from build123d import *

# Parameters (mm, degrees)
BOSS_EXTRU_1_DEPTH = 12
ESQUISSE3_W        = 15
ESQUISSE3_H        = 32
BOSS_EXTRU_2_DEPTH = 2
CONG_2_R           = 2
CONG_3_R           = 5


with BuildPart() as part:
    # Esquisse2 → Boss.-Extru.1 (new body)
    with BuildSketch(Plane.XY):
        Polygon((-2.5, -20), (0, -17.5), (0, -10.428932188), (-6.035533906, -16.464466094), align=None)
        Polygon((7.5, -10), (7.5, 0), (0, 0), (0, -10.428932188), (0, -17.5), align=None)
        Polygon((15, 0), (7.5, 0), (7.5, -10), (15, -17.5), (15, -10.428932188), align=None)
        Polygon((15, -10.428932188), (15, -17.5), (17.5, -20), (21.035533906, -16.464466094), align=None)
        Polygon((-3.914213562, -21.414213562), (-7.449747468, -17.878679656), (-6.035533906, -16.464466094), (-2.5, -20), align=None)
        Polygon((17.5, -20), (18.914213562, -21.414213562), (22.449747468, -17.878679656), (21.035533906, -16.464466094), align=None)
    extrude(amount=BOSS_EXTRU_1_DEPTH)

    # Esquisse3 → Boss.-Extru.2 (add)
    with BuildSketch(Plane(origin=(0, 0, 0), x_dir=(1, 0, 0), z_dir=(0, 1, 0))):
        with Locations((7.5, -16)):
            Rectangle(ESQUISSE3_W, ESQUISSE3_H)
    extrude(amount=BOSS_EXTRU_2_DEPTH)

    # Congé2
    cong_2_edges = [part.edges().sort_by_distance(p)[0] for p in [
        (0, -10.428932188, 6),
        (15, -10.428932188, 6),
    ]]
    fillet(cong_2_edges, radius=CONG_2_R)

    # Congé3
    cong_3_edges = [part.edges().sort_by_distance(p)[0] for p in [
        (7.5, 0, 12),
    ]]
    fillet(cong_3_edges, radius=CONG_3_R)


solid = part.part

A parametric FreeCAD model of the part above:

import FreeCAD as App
import Part
import Sketcher
Q = App.Units.Quantity


def edges_at(feature, points):
    """Names of the edges that pass closest to the given points."""
    edges = feature.Shape.Edges
    near = lambda p: min(range(len(edges)), key=lambda i: edges[i].distToShape(Part.Vertex(*p))[0])
    return sorted({f"Edge{near(p) + 1}" for p in points})


def add_polygon(sketch, points):
    """Adds a closed chain of lines whose ends are joined by coincident constraints."""
    first, n = sketch.GeometryCount, len(points)
    for a, b in zip(points, points[1:] + points[:1]):
        sketch.addGeometry(Part.LineSegment(App.Vector(*a, 0), App.Vector(*b, 0)), False)
    for i in range(n):
        sketch.addConstraint(Sketcher.Constraint("Coincident", first + i, 2, first + (i + 1) % n, 1))

doc = App.newDocument("Part")
body = doc.addObject("PartDesign::Body", "Body")

sketch1 = doc.addObject("Sketcher::SketchObject", "Sketch")
body.addObject(sketch1)
sketch1.AttachmentSupport = (doc.XY_Plane, [""])
sketch1.MapMode = "FlatFace"
add_polygon(sketch1, [(7.5, -10), (18.914214, -21.414214), (22.449747, -17.87868), (15, -10.428932), (15, 0), (0, 0), (0, -10.428932), (-7.449747, -17.87868), (-3.914214, -21.414214)])
sketch1.addConstraint(Sketcher.Constraint("Vertical", 3))
sketch1.addConstraint(Sketcher.Constraint("Horizontal", 4))
sketch1.addConstraint(Sketcher.Constraint("Vertical", 5))
sketch1.addConstraint(Sketcher.Constraint("Coincident", 4, 2, -1, 1))
sketch1.addConstraint(Sketcher.Constraint("Perpendicular", 0, 1))
sketch1.addConstraint(Sketcher.Constraint("Perpendicular", 1, 2))
sketch1.addConstraint(Sketcher.Constraint("Perpendicular", 2, 6))
sketch1.addConstraint(Sketcher.Constraint("Perpendicular", 6, 7))
sketch1.addConstraint(Sketcher.Constraint("Perpendicular", 7, 8))
sketch1.addConstraint(Sketcher.Constraint("Horizontal", 2, 2, 5, 2))
sketch1.addConstraint(Sketcher.Constraint("Horizontal", 1, 2, 6, 2))
sketch1.addConstraint(Sketcher.Constraint("Horizontal", 0, 2, 7, 2))
sketch1.addConstraint(Sketcher.Constraint("Equal", 2, 6))
sketch1.addConstraint(Sketcher.Constraint("DistanceX", 4, 2, 4, 1, Q("15 mm")))
sketch1.addConstraint(Sketcher.Constraint("Distance", 1, Q("5 mm")))
sketch1.addConstraint(Sketcher.Constraint("DistanceY", 8, 2, -1, 1, Q("10 mm")))
sketch1.addConstraint(Sketcher.Constraint("DistanceY", 1, 2, -1, 1, Q("17.87868 mm")))
pad1 = doc.addObject("PartDesign::Pad", "Pad")
body.addObject(pad1)
pad1.Profile = sketch1
pad1.Length = 12

sketch2 = doc.addObject("Sketcher::SketchObject", "Sketch001")
body.addObject(sketch2)
sketch2.AttachmentSupport = (doc.XZ_Plane, [""])
sketch2.MapMode = "FlatFace"
add_polygon(sketch2, [(0, 0), (0, 32), (15, 32), (15, 0)])
sketch2.addConstraint(Sketcher.Constraint("Vertical", 0))
sketch2.addConstraint(Sketcher.Constraint("Horizontal", 1))
sketch2.addConstraint(Sketcher.Constraint("Vertical", 2))
sketch2.addConstraint(Sketcher.Constraint("Horizontal", 3))
sketch2.addConstraint(Sketcher.Constraint("Coincident", 3, 2, -1, 1))
sketch2.addConstraint(Sketcher.Constraint("DistanceX", 1, 1, 1, 2, Q("15 mm")))
sketch2.addConstraint(Sketcher.Constraint("DistanceY", 0, 1, 0, 2, Q("32 mm")))
pad2 = doc.addObject("PartDesign::Pad", "Pad001")
body.addObject(pad2)
pad2.Profile = sketch2
pad2.Length = 2
pad2.Reversed = True
doc.recompute()

fillet = doc.addObject("PartDesign::Fillet", "Fillet")
body.addObject(fillet)
fillet.Base = (pad2, edges_at(pad2, [(0, -10.429, 6), (15, -10.429, 6)]))
fillet.Radius = 2
doc.recompute()

fillet2 = doc.addObject("PartDesign::Fillet", "Fillet001")
body.addObject(fillet2)
fillet2.Base = (fillet, edges_at(fillet, [(7.5, 0, 12)]))
fillet2.Radius = 5

doc.recompute()
